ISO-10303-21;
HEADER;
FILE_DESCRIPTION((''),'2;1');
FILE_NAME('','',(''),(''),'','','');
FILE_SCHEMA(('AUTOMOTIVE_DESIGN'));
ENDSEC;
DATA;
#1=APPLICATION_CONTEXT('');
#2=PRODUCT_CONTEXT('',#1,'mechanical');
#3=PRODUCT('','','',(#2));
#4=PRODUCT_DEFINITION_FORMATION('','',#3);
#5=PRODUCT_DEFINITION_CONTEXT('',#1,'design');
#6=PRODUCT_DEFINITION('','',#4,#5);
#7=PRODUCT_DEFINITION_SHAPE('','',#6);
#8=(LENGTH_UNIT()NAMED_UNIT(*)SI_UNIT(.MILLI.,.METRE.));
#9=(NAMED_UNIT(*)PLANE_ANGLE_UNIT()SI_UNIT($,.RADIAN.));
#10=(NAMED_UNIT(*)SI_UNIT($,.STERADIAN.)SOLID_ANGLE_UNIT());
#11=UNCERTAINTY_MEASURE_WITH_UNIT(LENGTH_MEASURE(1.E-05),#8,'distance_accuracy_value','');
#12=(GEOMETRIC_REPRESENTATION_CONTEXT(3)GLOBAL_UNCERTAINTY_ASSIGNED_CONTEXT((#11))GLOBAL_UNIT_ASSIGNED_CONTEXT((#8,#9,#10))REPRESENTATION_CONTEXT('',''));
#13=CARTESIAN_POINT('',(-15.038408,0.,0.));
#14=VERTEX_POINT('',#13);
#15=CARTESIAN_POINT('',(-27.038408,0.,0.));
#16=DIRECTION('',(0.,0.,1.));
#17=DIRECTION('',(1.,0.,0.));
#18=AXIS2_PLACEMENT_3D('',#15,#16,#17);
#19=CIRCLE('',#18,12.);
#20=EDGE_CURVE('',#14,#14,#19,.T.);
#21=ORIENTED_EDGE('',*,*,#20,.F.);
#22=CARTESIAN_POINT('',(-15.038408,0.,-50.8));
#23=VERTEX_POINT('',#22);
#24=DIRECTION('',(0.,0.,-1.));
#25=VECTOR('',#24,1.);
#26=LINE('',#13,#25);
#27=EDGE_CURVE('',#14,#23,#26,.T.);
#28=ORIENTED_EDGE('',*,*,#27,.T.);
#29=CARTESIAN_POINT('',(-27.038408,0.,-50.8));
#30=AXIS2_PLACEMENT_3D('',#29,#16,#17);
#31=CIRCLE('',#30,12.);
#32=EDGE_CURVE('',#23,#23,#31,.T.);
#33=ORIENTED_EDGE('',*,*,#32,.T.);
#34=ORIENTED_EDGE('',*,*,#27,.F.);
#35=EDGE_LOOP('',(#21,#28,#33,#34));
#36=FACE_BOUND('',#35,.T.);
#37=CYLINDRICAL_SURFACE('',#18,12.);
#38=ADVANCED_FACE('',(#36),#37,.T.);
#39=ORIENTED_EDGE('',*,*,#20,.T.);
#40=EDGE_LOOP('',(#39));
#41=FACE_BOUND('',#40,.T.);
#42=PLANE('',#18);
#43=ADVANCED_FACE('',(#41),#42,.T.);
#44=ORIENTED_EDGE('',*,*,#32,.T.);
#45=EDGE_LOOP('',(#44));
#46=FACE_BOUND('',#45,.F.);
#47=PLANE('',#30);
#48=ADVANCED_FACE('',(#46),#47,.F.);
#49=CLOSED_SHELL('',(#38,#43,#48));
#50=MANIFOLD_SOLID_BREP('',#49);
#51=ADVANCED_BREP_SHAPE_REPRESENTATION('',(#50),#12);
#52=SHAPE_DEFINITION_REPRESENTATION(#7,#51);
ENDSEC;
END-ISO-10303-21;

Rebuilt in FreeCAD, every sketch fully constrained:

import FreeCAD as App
import Part
import Sketcher
from FreeCAD import Vector
Q = App.Units.Quantity

doc = App.newDocument("Part")
body = doc.addObject("PartDesign::Body", "Body")

# Sketch on XY plane
sketch1 = body.newObject("Sketcher::SketchObject", "Sketch")
sketch1.AttachmentSupport = (doc.getObject("XY_Plane"), [""])
sketch1.MapMode = "FlatFace"
sketch1.addGeometry(Part.Circle(Vector(-27, 0, 0), Vector(0, 0, 1), 12), False)
sketch1.addConstraint([
    Sketcher.Constraint("PointOnObject", 0, 3, -1),
    Sketcher.Constraint("Diameter", 0, Q("24 mm")),
    Sketcher.Constraint("DistanceX", 0, 3, -1, 1, Q("27.038408 mm")),
])
pad1 = body.newObject("PartDesign::Pad", "Pad")
pad1.Profile = sketch1
pad1.Length = 50.8
pad1.Reversed = True

doc.recompute()
